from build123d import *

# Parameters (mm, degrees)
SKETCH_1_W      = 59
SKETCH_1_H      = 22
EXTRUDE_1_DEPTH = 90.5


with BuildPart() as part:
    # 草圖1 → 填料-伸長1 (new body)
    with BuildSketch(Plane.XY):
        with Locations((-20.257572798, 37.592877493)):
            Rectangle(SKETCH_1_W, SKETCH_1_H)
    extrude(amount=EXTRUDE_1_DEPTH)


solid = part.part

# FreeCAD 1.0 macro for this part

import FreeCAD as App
import Part
import Sketcher

V = App.Vector
Q = App.Units.Quantity


def add_polygon(sketch, points):
    """Adds a closed chain of lines whose ends are joined by coincident constraints."""
    first, n = sketch.GeometryCount, len(points)
    for a, b in zip(points, points[1:] + points[:1]):
        sketch.addGeometry(Part.LineSegment(App.Vector(*a, 0), App.Vector(*b, 0)), False)
    for i in range(n):
        sketch.addConstraint(Sketcher.Constraint("Coincident", first + i, 2, first + (i + 1) % n, 1))

doc = App.newDocument("Part")
body = doc.addObject("PartDesign::Body", "Body")

# Sketch on XY plane
sketch1 = body.newObject("Sketcher::SketchObject", "Sketch")
sketch1.AttachmentSupport = (doc.getObject("XY_Plane"), [""])
sketch1.MapMode = "FlatFace"
add_polygon(sketch1, [(-50, 49), (-50, 27), (9, 27), (9, 49)])  # lines 0-3
sketch1.addConstraint([
    Sketcher.Constraint("Vertical", 0),
    Sketcher.Constraint("Horizontal", 1),
    Sketcher.Constraint("Vertical", 2),
    Sketcher.Constraint("Horizontal", 3),
    Sketcher.Constraint("DistanceX", 1, 1, 1, 2, Q("59 mm")),
    Sketcher.Constraint("DistanceY", 0, 2, 0, 1, Q("22 mm")),
    Sketcher.Constraint("DistanceX", 0, 2, -1, 1, Q("49.757573 mm")),
    Sketcher.Constraint("DistanceY", -1, 1, 0, 2, Q("26.592877 mm")),
])
pad1 = body.newObject("PartDesign::Pad", "Pad")
pad1.Profile = sketch1
pad1.Length = 90.5

doc.recompute()
